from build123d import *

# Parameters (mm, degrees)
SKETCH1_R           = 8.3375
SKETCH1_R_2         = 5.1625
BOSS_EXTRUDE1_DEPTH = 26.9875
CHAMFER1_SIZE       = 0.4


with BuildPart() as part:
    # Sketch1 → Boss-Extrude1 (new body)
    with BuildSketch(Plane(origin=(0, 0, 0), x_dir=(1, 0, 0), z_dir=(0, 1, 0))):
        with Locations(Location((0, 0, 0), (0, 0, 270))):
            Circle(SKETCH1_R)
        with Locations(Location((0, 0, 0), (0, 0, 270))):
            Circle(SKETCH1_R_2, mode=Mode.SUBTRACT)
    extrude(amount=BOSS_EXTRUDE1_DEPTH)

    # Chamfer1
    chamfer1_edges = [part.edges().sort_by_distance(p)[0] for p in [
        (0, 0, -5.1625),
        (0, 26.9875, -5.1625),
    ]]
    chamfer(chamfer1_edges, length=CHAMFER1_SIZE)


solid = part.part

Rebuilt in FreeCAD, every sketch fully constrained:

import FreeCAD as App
import Part
import Sketcher

V = App.Vector
Q = App.Units.Quantity


def edges_at(feature, points):
    """Names of the edges that pass closest to the given points."""
    edges = feature.Shape.Edges
    near = lambda p: min(range(len(edges)), key=lambda i: edges[i].distToShape(Part.Vertex(*p))[0])
    return sorted({f"Edge{near(p) + 1}" for p in points})

doc = App.newDocument("Part")
body = doc.addObject("PartDesign::Body", "Body")

# Sketch on XZ plane
sketch1 = body.newObject("Sketcher::SketchObject", "Sketch")
sketch1.AttachmentSupport = (doc.getObject("XZ_Plane"), [""])
sketch1.MapMode = "FlatFace"
sketch1.addGeometry([
    Part.Circle(V(0, 0, 0), V(0, 0, 1), 8),
    Part.Circle(V(0, 0, 0), V(0, 0, 1), 5),
], False)
sketch1.addConstraint([
    Sketcher.Constraint("Coincident", 0, 3, -1, 1),
    Sketcher.Constraint("Coincident", 1, 3, -1, 1),
    Sketcher.Constraint("Diameter", 0, Q("16.675 mm")),
    Sketcher.Constraint("Diameter", 1, Q("10.325 mm")),
])
pad1 = body.newObject("PartDesign::Pad", "Pad")
pad1.Profile = sketch1
pad1.Length = 26.9875
pad1.Reversed = True
doc.recompute()

chamfer = body.newObject("PartDesign::Chamfer", "Chamfer")
chamfer.Base = (pad1, edges_at(pad1, [(0, 0, -5.162), (0, 26.988, -5.162)]))
chamfer.Size = 0.4

doc.recompute()
